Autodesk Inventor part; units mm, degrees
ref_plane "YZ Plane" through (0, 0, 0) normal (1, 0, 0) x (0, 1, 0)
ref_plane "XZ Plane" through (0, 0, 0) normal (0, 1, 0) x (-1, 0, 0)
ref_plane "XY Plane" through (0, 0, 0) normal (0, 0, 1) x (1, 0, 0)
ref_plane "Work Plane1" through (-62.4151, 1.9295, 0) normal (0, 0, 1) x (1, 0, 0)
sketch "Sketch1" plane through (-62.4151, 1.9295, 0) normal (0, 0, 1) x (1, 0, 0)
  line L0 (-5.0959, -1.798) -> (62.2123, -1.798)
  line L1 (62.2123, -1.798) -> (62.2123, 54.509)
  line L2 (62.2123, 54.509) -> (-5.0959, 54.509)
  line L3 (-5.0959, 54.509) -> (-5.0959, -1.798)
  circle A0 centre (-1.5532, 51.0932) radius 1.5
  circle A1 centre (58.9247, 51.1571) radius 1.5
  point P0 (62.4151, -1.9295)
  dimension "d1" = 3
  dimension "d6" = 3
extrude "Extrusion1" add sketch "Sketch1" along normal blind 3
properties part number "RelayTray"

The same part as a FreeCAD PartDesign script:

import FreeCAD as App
import Part
import Sketcher

doc = App.newDocument("Part")
body = doc.addObject("PartDesign::Body", "Body")

sketch1 = body.newObject("Sketcher::SketchObject", "Sketch")
sketch1.AttachmentSupport = (doc.getObject("XY_Plane"), [""])
sketch1.MapMode = "FlatFace"
sketch1.addGeometry([
    Part.LineSegment(App.Vector(-67.5, 56.4, 0), App.Vector(-67.5, 0.1, 0)),
    Part.LineSegment(App.Vector(-67.5, 0.1, 0), App.Vector(-0.2, 0.1, 0)),
    Part.LineSegment(App.Vector(-0.2, 0.1, 0), App.Vector(-0.2, 56.4, 0)),
    Part.LineSegment(App.Vector(-0.2, 56.4, 0), App.Vector(-67.5, 56.4, 0)),
    Part.Circle(App.Vector(-64, 53, 0), App.Vector(0, 0, 1), 1.5),
    Part.Circle(App.Vector(-3.5, 53.1, 0), App.Vector(0, 0, 1), 1.5),
], False)
sketch1.addConstraint([
    Sketcher.Constraint("Coincident", 0, 2, 1, 1),
    Sketcher.Constraint("Coincident", 1, 2, 2, 1),
    Sketcher.Constraint("Coincident", 2, 2, 3, 1),
    Sketcher.Constraint("Coincident", 3, 2, 0, 1),
    Sketcher.Constraint("Vertical", 0),
    Sketcher.Constraint("Horizontal", 1),
    Sketcher.Constraint("Vertical", 2),
    Sketcher.Constraint("Horizontal", 3),
    Sketcher.Constraint("Equal", 4, 5),
    Sketcher.Constraint("Diameter", 4, 3.0),
    Sketcher.Constraint("DistanceY", 0, 2, 0, 1, 56.307),
    Sketcher.Constraint("DistanceX", 1, 1, 1, 2, 67.3082),
    Sketcher.Constraint("DistanceX", 0, 2, -1, 1, 67.511),
    Sketcher.Constraint("DistanceX", 4, 3, 5, 3, 60.478),
    Sketcher.Constraint("DistanceY", 4, 3, 5, 3, 0.064),
    Sketcher.Constraint("DistanceY", 0, 2, 5, 3, 52.955),
    Sketcher.Constraint("DistanceX", 4, 3, -1, 1, 63.9683),
    Sketcher.Constraint("DistanceY", -1, 1, 4, 3, 53.0227),
])
pad1 = body.newObject("PartDesign::Pad", "Pad")
pad1.Profile = sketch1
pad1.Length = 3

doc.recompute()
